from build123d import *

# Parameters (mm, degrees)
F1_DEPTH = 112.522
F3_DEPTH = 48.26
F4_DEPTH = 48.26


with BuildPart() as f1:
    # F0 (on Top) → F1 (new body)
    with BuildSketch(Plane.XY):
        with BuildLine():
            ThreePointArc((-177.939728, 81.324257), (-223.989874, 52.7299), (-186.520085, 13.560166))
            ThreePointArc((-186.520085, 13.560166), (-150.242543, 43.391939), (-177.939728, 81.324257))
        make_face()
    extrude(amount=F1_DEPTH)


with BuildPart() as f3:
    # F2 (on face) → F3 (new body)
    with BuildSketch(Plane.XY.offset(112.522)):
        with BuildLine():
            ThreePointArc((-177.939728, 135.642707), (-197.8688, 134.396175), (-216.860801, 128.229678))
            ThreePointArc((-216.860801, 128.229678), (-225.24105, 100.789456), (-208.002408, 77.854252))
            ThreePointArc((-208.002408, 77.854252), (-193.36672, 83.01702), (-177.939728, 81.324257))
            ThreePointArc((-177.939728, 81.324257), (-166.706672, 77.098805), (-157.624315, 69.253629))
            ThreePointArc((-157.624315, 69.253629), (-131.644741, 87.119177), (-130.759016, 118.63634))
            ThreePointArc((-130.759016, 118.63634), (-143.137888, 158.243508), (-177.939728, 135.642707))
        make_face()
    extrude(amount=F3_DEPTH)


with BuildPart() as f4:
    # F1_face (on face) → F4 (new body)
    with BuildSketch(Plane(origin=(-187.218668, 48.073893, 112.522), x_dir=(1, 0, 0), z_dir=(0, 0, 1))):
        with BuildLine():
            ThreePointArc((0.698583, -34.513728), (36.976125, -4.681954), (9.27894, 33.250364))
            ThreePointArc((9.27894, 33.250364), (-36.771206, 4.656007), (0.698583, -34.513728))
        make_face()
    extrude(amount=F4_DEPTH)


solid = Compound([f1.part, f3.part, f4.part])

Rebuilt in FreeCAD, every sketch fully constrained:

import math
import FreeCAD as App
import Part
import Sketcher
Q = App.Units.Quantity

doc = App.newDocument("Part")
body = doc.addObject("PartDesign::Body", "Body")

# Sketch on XY plane
sketch1 = body.newObject("Sketcher::SketchObject", "Sketch")
sketch1.AttachmentSupport = (doc.getObject("XY_Plane"), [""])
sketch1.MapMode = "FlatFace"
sketch1.addGeometry([
    Part.ArcOfCircle(Part.Circle(App.Vector(-189.364753, 48.345633, 0), App.Vector(0, 0, 1), 34.901588), math.radians(70.892008), math.radians(274.675101)),
    Part.ArcOfCircle(Part.Circle(App.Vector(-184.180702, 47.689223, 0), App.Vector(0, 0, 1), 34.20914), math.radians(-93.921218), math.radians(79.488327)),
], False)
sketch1.addConstraint([
    Sketcher.Constraint("Coincident", 0, 1, 1, 2),
    Sketcher.Constraint("Coincident", 1, 1, 0, 2),
    Sketcher.Constraint("Radius", 1, Q("34.20914 mm")),
    Sketcher.Constraint("Radius", 0, Q("34.901588 mm")),
    Sketcher.Constraint("DistanceX", 1, 3, -1, 1, Q("184.180702 mm")),
    Sketcher.Constraint("DistanceX", 0, 1, -1, 1, Q("177.939728 mm")),
    Sketcher.Constraint("DistanceX", 0, 3, 1, 3, Q("5.184051 mm")),
    Sketcher.Constraint("DistanceY", -1, 1, 0, 3, Q("48.345633 mm")),
])
pad1 = body.newObject("PartDesign::Pad", "Pad")
pad1.Profile = sketch1
pad1.Length = Q("4.43 in")
body2 = doc.addObject("PartDesign::Body", "Body001")

# Sketch on XY plane
sketch2 = body2.newObject("Sketcher::SketchObject", "Sketch001")
sketch2.AttachmentSupport = (doc.getObject("XY_Plane001"), [""])
sketch2.MapMode = "FlatFace"
sketch2.AttachmentOffset = App.Placement(App.Vector(0, 0, 4.43 * 25.4), App.Rotation())
sketch2.addGeometry([
    Part.ArcOfCircle(Part.Circle(App.Vector(-182.973704, 56.191552, 0), App.Vector(0, 0, 1), 79.61047), math.radians(86.374621), math.radians(115.192529)),  # 0
    Part.ArcOfCircle(Part.Circle(App.Vector(-194.072535, 106.270362, 0), App.Vector(0, 0, 1), 31.646748), math.radians(136.061283), math.radians(243.885425)),  # 1
    Part.ArcOfCircle(Part.Circle(App.Vector(-189.364752, 48.345634, 0), App.Vector(0, 0, 1), 34.901586), math.radians(70.892008), math.radians(122.276524)),  # 2
    Part.ArcOfCircle(Part.Circle(App.Vector(-184.180707, 47.689214, 0), App.Vector(0, 0, 1), 34.20915), math.radians(39.077411), math.radians(79.488321)),  # 3
    Part.ArcOfCircle(Part.Circle(App.Vector(-162.213521, 103.749277, 0), App.Vector(0, 0, 1), 34.799577), math.radians(-82.422025), math.radians(25.327667)),  # 4
    Part.ArcOfCircle(Part.Circle(App.Vector(-151.968187, 133.745638, 0), App.Vector(0, 0, 1), 26.040734), math.radians(-35.465865), math.radians(175.822298)),  # 5
], False)
sketch2.addConstraint([
    Sketcher.Constraint("Coincident", 0, 2, 1, 1),
    Sketcher.Constraint("Coincident", 1, 2, 2, 2),
    Sketcher.Constraint("Coincident", 2, 1, 3, 2),
    Sketcher.Constraint("Coincident", 3, 1, 4, 1),
    Sketcher.Constraint("Coincident", 4, 2, 5, 1),
    Sketcher.Constraint("Coincident", 5, 2, 0, 1),
    Sketcher.Constraint("Vertical", 2, 1, 5, 2),
    Sketcher.Constraint("Radius", 0, Q("79.61047 mm")),
    Sketcher.Constraint("Radius", 3, Q("34.20915 mm")),
    Sketcher.Constraint("Radius", 1, Q("31.646748 mm")),
    Sketcher.Constraint("Radius", 2, Q("34.901586 mm")),
    Sketcher.Constraint("Radius", 4, Q("34.799577 mm")),
    Sketcher.Constraint("Radius", 5, Q("26.040734 mm")),
    Sketcher.Constraint("DistanceY", 3, 3, 1, 2, Q("1.1875999 in")),
    Sketcher.Constraint("DistanceX", 0, 2, -1, 1, Q("216.860801 mm")),
    Sketcher.Constraint("DistanceY", 4, 3, 0, 2, Q("24.480401 mm")),
    Sketcher.Constraint("DistanceY", 0, 3, 1, 2, Q("21.6627 mm")),
    Sketcher.Constraint("DistanceX", 1, 2, 3, 3, Q("23.821701 mm")),
    Sketcher.Constraint("DistanceX", 3, 1, 4, 2, Q("26.865299 mm")),
    Sketcher.Constraint("DistanceY", -1, 1, 1, 3, Q("106.270362 mm")),
    Sketcher.Constraint("DistanceX", 4, 3, -1, 1, Q("162.213521 mm")),
    Sketcher.Constraint("DistanceY", -1, 1, 0, 2, Q("128.229678 mm")),
    Sketcher.Constraint("DistanceY", -1, 1, 4, 2, Q("118.63634 mm")),
    Sketcher.Constraint("DistanceX", 2, 3, 0, 3, Q("6.391048 mm")),
])
pad2 = body2.newObject("PartDesign::Pad", "Pad001")
pad2.Profile = sketch2
pad2.Length = Q("1.9 in")
body3 = doc.addObject("PartDesign::Body", "Body002")

# Sketch on XY plane
sketch3 = body3.newObject("Sketcher::SketchObject", "Sketch002")
sketch3.AttachmentSupport = (doc.getObject("XY_Plane002"), [""])
sketch3.MapMode = "FlatFace"
sketch3.AttachmentOffset = App.Placement(App.Vector(0, 0, 4.43 * 25.4), App.Rotation())
sketch3.addGeometry([
    Part.ArcOfCircle(Part.Circle(App.Vector(-184.180702, 47.689223, 0), App.Vector(0, 0, 1), 34.20914), math.radians(-93.921217), math.radians(79.488326)),
    Part.ArcOfCircle(Part.Circle(App.Vector(-189.364752, 48.345632, 0), App.Vector(0, 0, 1), 34.901588), math.radians(70.892009), math.radians(274.6751)),
], False)
sketch3.addConstraint([
    Sketcher.Constraint("Coincident", 0, 1, 1, 2),
    Sketcher.Constraint("Coincident", 1, 1, 0, 2),
    Sketcher.Constraint("Radius", 0, Q("34.20914 mm")),
    Sketcher.Constraint("Radius", 1, Q("34.901588 mm")),
    Sketcher.Constraint("DistanceX", 1, 1, -1, 1, Q("177.939728 mm")),
    Sketcher.Constraint("DistanceX", 1, 3, 0, 3, Q("5.18405 mm")),
    Sketcher.Constraint("DistanceY", 0, 3, 1, 3, Q("0.65641 mm")),
    Sketcher.Constraint("DistanceY", -1, 1, 0, 3, Q("47.689223 mm")),
])
pad3 = body3.newObject("PartDesign::Pad", "Pad002")
pad3.Profile = sketch3
pad3.Length = Q("1.9 in")

doc.recompute()
